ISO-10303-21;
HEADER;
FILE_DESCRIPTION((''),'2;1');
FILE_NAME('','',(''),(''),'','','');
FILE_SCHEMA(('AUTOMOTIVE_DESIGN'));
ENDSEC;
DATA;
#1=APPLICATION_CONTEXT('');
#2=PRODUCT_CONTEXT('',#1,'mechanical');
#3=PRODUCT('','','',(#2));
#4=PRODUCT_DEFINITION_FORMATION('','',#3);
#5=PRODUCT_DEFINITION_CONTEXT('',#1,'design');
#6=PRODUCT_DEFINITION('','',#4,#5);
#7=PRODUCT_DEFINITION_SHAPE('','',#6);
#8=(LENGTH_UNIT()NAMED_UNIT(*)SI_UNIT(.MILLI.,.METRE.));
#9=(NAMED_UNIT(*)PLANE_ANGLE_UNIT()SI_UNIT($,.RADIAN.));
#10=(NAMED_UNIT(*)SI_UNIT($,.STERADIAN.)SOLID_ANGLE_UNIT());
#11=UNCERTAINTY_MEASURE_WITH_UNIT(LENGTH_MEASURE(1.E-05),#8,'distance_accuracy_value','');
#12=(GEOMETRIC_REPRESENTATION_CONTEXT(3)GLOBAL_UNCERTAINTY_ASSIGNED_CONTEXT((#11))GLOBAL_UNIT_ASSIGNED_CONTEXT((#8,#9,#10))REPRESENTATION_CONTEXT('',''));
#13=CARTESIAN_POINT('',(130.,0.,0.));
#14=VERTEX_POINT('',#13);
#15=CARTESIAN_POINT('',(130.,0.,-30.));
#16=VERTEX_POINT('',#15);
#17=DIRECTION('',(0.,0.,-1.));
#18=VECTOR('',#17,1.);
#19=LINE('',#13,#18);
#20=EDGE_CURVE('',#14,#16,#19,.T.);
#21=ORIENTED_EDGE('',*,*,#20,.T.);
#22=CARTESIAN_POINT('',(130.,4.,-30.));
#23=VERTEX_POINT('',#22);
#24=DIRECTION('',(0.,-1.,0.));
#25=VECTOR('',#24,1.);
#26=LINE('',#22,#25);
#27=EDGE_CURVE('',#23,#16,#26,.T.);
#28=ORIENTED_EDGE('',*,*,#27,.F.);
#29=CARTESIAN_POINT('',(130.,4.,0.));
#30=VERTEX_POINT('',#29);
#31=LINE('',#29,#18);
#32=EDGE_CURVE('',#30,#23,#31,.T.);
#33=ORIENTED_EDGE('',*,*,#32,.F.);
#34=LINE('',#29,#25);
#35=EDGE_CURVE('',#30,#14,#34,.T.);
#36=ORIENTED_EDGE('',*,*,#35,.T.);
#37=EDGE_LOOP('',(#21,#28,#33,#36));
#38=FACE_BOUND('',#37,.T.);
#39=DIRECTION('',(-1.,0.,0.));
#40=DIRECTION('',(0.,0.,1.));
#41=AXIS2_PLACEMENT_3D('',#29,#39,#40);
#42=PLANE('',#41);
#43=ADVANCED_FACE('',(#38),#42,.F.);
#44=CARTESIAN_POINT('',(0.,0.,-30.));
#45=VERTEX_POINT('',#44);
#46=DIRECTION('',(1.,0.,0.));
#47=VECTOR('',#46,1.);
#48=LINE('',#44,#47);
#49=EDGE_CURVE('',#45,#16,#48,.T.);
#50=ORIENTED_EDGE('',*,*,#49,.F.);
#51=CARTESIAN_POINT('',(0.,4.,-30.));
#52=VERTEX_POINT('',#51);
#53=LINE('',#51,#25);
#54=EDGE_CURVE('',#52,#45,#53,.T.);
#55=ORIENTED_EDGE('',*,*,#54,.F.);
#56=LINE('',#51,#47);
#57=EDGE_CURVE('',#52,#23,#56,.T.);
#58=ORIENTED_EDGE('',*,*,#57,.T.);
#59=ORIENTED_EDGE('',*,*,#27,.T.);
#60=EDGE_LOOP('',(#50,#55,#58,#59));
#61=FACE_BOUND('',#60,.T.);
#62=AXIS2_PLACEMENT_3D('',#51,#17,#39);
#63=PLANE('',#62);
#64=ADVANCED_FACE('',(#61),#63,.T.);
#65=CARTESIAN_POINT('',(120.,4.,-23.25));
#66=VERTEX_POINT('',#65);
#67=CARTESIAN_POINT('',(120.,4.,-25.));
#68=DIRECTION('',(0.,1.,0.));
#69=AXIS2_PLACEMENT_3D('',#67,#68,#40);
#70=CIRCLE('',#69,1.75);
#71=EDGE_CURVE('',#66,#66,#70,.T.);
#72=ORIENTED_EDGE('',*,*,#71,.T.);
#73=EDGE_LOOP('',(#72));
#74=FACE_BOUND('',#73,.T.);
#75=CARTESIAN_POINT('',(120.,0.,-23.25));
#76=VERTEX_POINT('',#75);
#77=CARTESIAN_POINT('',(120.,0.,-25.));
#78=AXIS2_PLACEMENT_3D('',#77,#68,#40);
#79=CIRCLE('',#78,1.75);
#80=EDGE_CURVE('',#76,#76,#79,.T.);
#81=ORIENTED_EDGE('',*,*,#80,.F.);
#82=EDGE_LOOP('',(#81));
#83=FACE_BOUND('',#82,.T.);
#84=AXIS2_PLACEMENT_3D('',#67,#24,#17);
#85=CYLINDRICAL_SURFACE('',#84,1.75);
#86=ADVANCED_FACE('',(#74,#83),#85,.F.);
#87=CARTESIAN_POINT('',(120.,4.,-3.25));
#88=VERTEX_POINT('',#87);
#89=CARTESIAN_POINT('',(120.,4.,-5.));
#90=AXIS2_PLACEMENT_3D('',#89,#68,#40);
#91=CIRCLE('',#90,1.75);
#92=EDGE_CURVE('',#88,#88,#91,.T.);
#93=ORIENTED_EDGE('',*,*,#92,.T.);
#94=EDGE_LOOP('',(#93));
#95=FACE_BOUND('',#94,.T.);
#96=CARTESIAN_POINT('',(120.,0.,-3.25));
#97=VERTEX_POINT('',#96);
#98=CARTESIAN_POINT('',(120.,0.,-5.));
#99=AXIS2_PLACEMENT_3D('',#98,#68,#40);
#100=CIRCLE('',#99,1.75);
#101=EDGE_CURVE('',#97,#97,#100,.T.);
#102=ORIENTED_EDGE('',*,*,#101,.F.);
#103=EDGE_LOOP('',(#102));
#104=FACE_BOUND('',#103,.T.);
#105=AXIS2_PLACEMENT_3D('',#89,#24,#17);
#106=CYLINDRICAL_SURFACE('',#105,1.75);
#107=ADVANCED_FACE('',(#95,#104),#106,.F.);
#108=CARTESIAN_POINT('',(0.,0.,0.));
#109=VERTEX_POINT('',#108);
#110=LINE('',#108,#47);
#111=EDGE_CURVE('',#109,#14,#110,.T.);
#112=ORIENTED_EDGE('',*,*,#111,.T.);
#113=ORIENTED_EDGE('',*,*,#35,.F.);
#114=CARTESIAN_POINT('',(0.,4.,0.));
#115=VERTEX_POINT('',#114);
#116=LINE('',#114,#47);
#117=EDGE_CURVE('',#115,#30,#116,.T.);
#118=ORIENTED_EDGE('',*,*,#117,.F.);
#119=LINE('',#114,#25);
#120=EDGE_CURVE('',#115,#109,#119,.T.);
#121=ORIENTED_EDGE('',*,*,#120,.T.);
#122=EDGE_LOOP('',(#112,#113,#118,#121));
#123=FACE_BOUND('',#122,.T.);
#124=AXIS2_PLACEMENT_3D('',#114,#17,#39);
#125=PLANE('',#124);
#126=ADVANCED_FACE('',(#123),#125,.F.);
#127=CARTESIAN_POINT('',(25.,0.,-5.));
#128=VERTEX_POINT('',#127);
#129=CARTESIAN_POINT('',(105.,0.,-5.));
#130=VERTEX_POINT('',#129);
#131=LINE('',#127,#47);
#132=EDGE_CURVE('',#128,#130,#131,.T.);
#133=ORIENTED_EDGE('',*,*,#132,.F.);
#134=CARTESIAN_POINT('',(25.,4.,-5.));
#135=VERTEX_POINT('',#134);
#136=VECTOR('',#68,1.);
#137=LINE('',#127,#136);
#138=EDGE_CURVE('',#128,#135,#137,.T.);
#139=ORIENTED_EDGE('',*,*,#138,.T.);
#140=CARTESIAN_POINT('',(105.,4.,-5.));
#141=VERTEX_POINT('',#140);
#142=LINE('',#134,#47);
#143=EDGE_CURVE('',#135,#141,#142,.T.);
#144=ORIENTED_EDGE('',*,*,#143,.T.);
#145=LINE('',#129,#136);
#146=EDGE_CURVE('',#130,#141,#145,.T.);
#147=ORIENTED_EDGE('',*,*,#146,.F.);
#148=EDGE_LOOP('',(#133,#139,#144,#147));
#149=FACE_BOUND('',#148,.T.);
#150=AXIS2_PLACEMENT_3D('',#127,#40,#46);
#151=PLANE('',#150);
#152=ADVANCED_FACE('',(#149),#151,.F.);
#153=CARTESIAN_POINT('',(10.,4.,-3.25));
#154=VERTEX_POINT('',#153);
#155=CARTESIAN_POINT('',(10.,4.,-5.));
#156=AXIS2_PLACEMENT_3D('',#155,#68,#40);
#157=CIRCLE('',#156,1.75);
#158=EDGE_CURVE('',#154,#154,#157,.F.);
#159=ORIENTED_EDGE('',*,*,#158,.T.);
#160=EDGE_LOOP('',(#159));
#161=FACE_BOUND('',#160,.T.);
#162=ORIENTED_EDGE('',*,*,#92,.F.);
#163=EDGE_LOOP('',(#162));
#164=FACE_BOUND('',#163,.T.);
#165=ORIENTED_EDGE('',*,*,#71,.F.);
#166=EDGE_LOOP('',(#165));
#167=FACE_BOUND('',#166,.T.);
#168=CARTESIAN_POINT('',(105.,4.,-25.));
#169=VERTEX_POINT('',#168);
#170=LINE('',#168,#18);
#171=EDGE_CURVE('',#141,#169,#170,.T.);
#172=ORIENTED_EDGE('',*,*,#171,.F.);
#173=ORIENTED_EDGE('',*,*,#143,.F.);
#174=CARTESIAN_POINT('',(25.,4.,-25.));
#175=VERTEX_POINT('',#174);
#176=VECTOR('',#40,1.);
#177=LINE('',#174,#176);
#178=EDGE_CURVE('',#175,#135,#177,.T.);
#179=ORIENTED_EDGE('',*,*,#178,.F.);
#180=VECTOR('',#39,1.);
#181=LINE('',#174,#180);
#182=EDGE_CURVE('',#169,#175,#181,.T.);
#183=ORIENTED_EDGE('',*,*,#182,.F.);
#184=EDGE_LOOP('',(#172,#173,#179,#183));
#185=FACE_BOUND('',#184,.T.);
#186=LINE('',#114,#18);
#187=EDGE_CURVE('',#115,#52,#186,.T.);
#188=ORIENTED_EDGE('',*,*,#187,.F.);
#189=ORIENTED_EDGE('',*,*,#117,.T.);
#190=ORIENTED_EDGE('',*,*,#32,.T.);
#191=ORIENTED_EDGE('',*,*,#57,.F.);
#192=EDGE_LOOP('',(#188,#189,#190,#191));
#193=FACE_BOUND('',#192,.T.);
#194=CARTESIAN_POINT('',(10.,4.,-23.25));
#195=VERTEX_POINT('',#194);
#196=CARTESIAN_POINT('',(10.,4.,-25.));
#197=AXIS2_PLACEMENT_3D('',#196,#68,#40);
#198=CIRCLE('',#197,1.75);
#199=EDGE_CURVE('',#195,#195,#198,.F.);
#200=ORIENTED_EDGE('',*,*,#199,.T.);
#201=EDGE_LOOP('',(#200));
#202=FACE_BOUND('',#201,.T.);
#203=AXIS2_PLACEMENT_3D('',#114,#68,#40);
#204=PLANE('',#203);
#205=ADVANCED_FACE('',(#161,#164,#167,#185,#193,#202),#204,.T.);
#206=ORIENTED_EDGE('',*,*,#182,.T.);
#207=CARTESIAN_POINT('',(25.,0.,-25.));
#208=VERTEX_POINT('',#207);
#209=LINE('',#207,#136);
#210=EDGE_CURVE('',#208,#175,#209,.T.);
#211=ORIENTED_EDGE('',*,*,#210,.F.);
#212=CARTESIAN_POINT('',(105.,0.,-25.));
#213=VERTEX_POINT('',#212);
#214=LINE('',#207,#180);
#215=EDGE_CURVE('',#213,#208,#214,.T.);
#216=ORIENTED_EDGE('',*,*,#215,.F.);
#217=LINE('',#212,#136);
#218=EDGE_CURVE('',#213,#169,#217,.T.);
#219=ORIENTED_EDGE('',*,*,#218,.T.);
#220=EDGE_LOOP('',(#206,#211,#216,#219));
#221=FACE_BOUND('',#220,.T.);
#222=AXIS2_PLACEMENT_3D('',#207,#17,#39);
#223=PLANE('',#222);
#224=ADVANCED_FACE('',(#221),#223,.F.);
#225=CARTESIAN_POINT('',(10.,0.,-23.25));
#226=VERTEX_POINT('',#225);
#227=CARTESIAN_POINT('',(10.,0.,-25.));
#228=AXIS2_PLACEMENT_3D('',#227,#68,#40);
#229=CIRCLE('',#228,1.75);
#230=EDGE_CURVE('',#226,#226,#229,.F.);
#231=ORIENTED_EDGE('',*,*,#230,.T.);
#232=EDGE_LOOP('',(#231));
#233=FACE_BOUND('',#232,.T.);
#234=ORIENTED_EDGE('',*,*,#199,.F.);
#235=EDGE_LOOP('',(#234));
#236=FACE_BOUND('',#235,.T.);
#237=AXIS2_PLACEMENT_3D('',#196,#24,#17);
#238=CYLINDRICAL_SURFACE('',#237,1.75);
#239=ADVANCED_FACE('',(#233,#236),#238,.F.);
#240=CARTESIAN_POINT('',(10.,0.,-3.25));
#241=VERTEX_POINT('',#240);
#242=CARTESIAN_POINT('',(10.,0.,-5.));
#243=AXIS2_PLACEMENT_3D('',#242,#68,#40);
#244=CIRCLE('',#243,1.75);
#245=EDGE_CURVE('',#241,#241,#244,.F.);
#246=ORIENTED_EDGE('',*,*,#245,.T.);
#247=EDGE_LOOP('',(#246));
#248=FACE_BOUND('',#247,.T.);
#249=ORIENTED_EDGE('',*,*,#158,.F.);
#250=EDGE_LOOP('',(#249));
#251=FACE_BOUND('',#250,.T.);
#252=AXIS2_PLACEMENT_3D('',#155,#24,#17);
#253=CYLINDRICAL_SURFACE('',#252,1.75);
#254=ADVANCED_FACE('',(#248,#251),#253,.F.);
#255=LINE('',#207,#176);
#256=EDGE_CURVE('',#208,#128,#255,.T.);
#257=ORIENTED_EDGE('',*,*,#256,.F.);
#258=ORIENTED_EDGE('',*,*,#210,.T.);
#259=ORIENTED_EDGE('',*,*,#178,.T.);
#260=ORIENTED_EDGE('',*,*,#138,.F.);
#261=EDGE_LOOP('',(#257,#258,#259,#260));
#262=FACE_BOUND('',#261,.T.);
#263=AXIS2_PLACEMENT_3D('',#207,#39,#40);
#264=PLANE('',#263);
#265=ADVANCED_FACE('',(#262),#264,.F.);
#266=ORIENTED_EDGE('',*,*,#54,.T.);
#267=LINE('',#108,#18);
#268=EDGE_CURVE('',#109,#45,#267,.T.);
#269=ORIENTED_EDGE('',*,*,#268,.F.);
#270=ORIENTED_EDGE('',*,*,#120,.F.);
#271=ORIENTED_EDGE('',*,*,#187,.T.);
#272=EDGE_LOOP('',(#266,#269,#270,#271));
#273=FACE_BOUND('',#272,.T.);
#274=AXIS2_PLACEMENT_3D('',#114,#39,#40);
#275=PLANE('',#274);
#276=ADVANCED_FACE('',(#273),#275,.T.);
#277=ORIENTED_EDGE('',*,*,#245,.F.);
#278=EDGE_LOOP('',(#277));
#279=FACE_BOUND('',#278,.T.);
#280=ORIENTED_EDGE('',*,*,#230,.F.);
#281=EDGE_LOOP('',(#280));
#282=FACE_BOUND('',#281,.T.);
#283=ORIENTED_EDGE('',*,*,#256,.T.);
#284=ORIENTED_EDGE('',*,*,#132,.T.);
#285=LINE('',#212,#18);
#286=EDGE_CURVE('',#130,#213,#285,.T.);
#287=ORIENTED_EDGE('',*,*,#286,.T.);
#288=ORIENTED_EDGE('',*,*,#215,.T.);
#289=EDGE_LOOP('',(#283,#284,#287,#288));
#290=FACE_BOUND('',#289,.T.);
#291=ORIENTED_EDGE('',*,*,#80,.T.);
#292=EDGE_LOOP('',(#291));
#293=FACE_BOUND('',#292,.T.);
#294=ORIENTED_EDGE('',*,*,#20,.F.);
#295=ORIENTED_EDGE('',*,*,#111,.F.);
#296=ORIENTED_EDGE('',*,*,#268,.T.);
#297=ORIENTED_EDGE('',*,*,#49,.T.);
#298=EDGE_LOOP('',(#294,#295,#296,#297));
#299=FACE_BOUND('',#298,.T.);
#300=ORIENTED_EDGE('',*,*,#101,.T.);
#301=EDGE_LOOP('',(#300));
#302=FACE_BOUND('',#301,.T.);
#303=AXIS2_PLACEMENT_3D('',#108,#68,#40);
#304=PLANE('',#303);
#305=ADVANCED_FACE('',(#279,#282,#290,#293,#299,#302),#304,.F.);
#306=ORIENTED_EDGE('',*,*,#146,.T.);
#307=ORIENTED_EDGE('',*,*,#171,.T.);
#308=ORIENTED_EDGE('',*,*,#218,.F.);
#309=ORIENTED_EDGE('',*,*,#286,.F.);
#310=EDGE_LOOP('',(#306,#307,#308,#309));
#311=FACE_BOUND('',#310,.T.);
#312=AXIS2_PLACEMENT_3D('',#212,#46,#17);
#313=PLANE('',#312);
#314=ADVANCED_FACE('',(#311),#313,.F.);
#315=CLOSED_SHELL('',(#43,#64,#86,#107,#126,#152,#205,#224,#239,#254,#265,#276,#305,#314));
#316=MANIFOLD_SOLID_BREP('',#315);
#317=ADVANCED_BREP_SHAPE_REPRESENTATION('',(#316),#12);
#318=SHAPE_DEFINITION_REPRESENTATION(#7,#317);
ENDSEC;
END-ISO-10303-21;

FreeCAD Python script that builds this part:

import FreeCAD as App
import Part
import Sketcher
from FreeCAD import Vector
Q = App.Units.Quantity


def add_polygon(sketch, points):
    """Adds a closed chain of lines whose ends are joined by coincident constraints."""
    first, n = sketch.GeometryCount, len(points)
    for a, b in zip(points, points[1:] + points[:1]):
        sketch.addGeometry(Part.LineSegment(App.Vector(*a, 0), App.Vector(*b, 0)), False)
    for i in range(n):
        sketch.addConstraint(Sketcher.Constraint("Coincident", first + i, 2, first + (i + 1) % n, 1))

doc = App.newDocument("Part")
body = doc.addObject("PartDesign::Body", "Body")

# Sketch on XZ plane
sketch1 = body.newObject("Sketcher::SketchObject", "Sketch")
sketch1.AttachmentSupport = (doc.getObject("XZ_Plane"), [""])
sketch1.MapMode = "FlatFace"
add_polygon(sketch1, [(0, -30), (0, 0), (130, 0), (130, -30)])  # lines 0-3
sketch1.addGeometry(Part.Circle(Vector(10, -5, 0), Vector(0, 0, 1), 1.8), False)  # 4
sketch1.addGeometry(Part.Circle(Vector(120, -5, 0), Vector(0, 0, 1), 1.8), False)  # 5
sketch1.addGeometry(Part.Circle(Vector(10, -25, 0), Vector(0, 0, 1), 1.8), False)  # 6
sketch1.addGeometry(Part.Circle(Vector(120, -25, 0), Vector(0, 0, 1), 1.8), False)  # 7
sketch1.addConstraint([
    Sketcher.Constraint("Vertical", 0),
    Sketcher.Constraint("Horizontal", 1),
    Sketcher.Constraint("Vertical", 2),
    Sketcher.Constraint("Horizontal", 3),
    Sketcher.Constraint("Coincident", 0, 2, -1, 1),
    Sketcher.Constraint("Equal", 4, 5),
    Sketcher.Constraint("Equal", 5, 6),
    Sketcher.Constraint("Equal", 6, 7),
    Sketcher.Constraint("Horizontal", 4, 3, 5, 3),
    Sketcher.Constraint("Horizontal", 6, 3, 7, 3),
    Sketcher.Constraint("Vertical", 4, 3, 6, 3),
    Sketcher.Constraint("Vertical", 5, 3, 7, 3),
    Sketcher.Constraint("Diameter", 4, Q("3.5 mm")),
    Sketcher.Constraint("DistanceX", 1, 1, 1, 2, Q("130 mm")),
    Sketcher.Constraint("DistanceY", 0, 1, 0, 2, Q("30 mm")),
    Sketcher.Constraint("DistanceX", -1, 1, 4, 3, Q("10 mm")),
    Sketcher.Constraint("DistanceY", 4, 3, -1, 1, Q("5 mm")),
    Sketcher.Constraint("DistanceX", -1, 1, 5, 3, Q("120 mm")),
    Sketcher.Constraint("DistanceY", 6, 3, -1, 1, Q("25 mm")),
])
pad1 = body.newObject("PartDesign::Pad", "Pad")
pad1.Profile = sketch1
pad1.Length = 4
pad1.Reversed = True

# Sketch on XZ plane
sketch2 = body.newObject("Sketcher::SketchObject", "Sketch001")
sketch2.AttachmentSupport = (doc.getObject("XZ_Plane"), [""])
sketch2.MapMode = "FlatFace"
sketch2.AttachmentOffset = App.Placement(Vector(0, 0, -4), App.Rotation())
add_polygon(sketch2, [(25, -25), (25, -5), (105, -5), (105, -25)])  # lines 0-3
sketch2.addConstraint([
    Sketcher.Constraint("Vertical", 0),
    Sketcher.Constraint("Horizontal", 1),
    Sketcher.Constraint("Vertical", 2),
    Sketcher.Constraint("Horizontal", 3),
    Sketcher.Constraint("DistanceX", 1, 1, 1, 2, Q("80 mm")),
    Sketcher.Constraint("DistanceY", 0, 1, 0, 2, Q("20 mm")),
    Sketcher.Constraint("DistanceX", -1, 1, 0, 2, Q("25 mm")),
    Sketcher.Constraint("DistanceY", 0, 2, -1, 1, Q("5 mm")),
])
pocket1 = body.newObject("PartDesign::Pocket", "Pocket")
pocket1.Profile = sketch2
pocket1.Type = "ThroughAll"
pocket1.Reversed = True

doc.recompute()
